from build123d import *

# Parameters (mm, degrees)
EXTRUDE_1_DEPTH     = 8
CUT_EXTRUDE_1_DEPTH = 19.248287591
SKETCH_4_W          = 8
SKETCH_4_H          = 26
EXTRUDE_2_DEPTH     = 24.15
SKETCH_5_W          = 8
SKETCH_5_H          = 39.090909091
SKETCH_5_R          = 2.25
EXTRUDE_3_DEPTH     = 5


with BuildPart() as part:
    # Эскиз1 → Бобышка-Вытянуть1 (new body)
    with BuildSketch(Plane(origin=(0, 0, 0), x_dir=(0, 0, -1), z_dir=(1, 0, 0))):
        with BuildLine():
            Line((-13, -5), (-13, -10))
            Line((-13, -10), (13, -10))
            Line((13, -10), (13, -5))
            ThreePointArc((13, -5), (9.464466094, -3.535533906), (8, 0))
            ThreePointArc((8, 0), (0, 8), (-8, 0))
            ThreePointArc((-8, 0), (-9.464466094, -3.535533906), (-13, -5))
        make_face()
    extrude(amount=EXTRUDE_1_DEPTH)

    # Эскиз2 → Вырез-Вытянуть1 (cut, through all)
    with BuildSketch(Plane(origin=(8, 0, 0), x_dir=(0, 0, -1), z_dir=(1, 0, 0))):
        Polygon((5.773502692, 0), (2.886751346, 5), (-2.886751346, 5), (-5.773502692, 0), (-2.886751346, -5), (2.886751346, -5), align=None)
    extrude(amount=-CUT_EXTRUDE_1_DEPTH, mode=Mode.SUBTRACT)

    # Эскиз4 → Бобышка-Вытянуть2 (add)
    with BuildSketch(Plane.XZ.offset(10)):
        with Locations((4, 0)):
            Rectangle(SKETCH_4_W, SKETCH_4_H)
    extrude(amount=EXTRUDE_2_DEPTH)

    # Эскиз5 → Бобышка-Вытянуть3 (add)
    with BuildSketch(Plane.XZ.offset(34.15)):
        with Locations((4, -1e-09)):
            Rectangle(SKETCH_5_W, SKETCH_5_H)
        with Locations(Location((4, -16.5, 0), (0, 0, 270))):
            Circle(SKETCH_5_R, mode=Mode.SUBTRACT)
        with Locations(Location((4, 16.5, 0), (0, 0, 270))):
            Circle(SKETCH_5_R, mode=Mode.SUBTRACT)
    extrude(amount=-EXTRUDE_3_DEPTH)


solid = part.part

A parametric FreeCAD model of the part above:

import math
import FreeCAD as App
import Part
import Sketcher
from FreeCAD import Vector
Q = App.Units.Quantity

doc = App.newDocument("Part")
body = doc.addObject("PartDesign::Body", "Body")

# Sketch on YZ plane
sketch1 = body.newObject("Sketcher::SketchObject", "Sketch")
sketch1.AttachmentSupport = (doc.getObject("YZ_Plane"), [""])
sketch1.MapMode = "FlatFace"
sketch1.addGeometry([
    Part.LineSegment(Vector(-5, 13, 0), Vector(-10, 13, 0)),  # 0
    Part.LineSegment(Vector(-10, 13, 0), Vector(-10, -13, 0)),  # 1
    Part.LineSegment(Vector(-10, -13, 0), Vector(-5, -13, 0)),  # 2
    Part.ArcOfCircle(Part.Circle(Vector(0, -13, 0), Vector(0, 0, 1), 5), math.radians(90), math.radians(180)),  # 3
    Part.ArcOfCircle(Part.Circle(Vector(0, 0, 0), Vector(0, 0, 1), 8), math.radians(-90), math.radians(90)),  # 4
    Part.ArcOfCircle(Part.Circle(Vector(0, 13, 0), Vector(0, 0, 1), 5), math.radians(180), math.radians(270)),  # 5
], False)
sketch1.addConstraint([
    Sketcher.Constraint("Coincident", 0, 2, 1, 1),
    Sketcher.Constraint("Coincident", 1, 2, 2, 1),
    Sketcher.Constraint("Coincident", 2, 2, 3, 2),
    Sketcher.Constraint("Tangent", 3, 1, 4, 1),
    Sketcher.Constraint("Tangent", 4, 2, 5, 2),
    Sketcher.Constraint("Coincident", 5, 1, 0, 1),
    Sketcher.Constraint("Horizontal", 0),
    Sketcher.Constraint("Vertical", 1),
    Sketcher.Constraint("Horizontal", 2),
    Sketcher.Constraint("Coincident", 4, 3, -1, 1),
    Sketcher.Constraint("Equal", 3, 5),
    Sketcher.Constraint("Symmetric", 2, 2, 5, 1, -1),
    Sketcher.Constraint("PointOnObject", 3, 3, -2),
    Sketcher.Constraint("Horizontal", 5, 3, 0, 2),
    Sketcher.Constraint("Radius", 3, Q("5 mm")),
    Sketcher.Constraint("Radius", 4, Q("8 mm")),
    Sketcher.Constraint("DistanceX", 0, 2, 0, 1, Q("5 mm")),
])
pad1 = body.newObject("PartDesign::Pad", "Pad")
pad1.Profile = sketch1
pad1.Length = 8

# Sketch on YZ plane
sketch2 = body.newObject("Sketcher::SketchObject", "Sketch001")
sketch2.AttachmentSupport = (doc.getObject("YZ_Plane"), [""])
sketch2.MapMode = "FlatFace"
sketch2.AttachmentOffset = App.Placement(Vector(0, 0, 8), App.Rotation())
sketch2.addGeometry([
    Part.LineSegment(Vector(0, -5.773503, 0), Vector(5, -2.886751, 0)),  # 0
    Part.LineSegment(Vector(5, -2.886751, 0), Vector(5, 2.886751, 0)),  # 1
    Part.LineSegment(Vector(5, 2.886751, 0), Vector(0, 5.773503, 0)),  # 2
    Part.LineSegment(Vector(0, 5.773503, 0), Vector(-5, 2.886751, 0)),  # 3
    Part.LineSegment(Vector(-5, 2.886751, 0), Vector(-5, -2.886751, 0)),  # 4
    Part.LineSegment(Vector(-5, -2.886751, 0), Vector(0, -5.773503, 0)),  # 5
], False)
sketch2.addConstraint([
    Sketcher.Constraint("Coincident", 0, 2, 1, 1),
    Sketcher.Constraint("Coincident", 1, 2, 2, 1),
    Sketcher.Constraint("Coincident", 2, 2, 3, 1),
    Sketcher.Constraint("Coincident", 3, 2, 4, 1),
    Sketcher.Constraint("Coincident", 4, 2, 5, 1),
    Sketcher.Constraint("Coincident", 5, 2, 0, 1),
    Sketcher.Constraint("Vertical", 1),
    Sketcher.Constraint("Vertical", 4),
    Sketcher.Constraint("Symmetric", 0, 2, 3, 2, -1, 1),
    Sketcher.Constraint("Symmetric", 2, 2, 5, 2, -1, 1),
    Sketcher.Constraint("PointOnObject", 2, 2, -2),
    Sketcher.Constraint("Parallel", 2, 5),
    Sketcher.Constraint("Horizontal", 1, 2, 3, 2),
    Sketcher.Constraint("Angle", 0, Q("30 deg")),
    Sketcher.Constraint("DistanceX", -1, 1, 0, 2, Q("5 mm")),
    Sketcher.Constraint("DistanceY", 1, 1, 1, 2, Q("5.773503 mm")),
])
pocket1 = body.newObject("PartDesign::Pocket", "Pocket")
pocket1.Profile = sketch2
pocket1.Type = "ThroughAll"

# Sketch on XZ plane
sketch3 = body.newObject("Sketcher::SketchObject", "Sketch002")
sketch3.AttachmentSupport = (doc.getObject("XZ_Plane"), [""])
sketch3.MapMode = "FlatFace"
sketch3.AttachmentOffset = App.Placement(Vector(0, 0, 10), App.Rotation())
sketch3.addGeometry([
    Part.LineSegment(Vector(0, 13, 0), Vector(0, -13, 0)),
    Part.LineSegment(Vector(0, -13, 0), Vector(8, -13, 0)),
    Part.LineSegment(Vector(8, -13, 0), Vector(8, 13, 0)),
    Part.LineSegment(Vector(8, 13, 0), Vector(0, 13, 0)),
], False)
sketch3.addConstraint([
    Sketcher.Constraint("Coincident", 0, 2, 1, 1),
    Sketcher.Constraint("Coincident", 1, 2, 2, 1),
    Sketcher.Constraint("Coincident", 2, 2, 3, 1),
    Sketcher.Constraint("Coincident", 3, 2, 0, 1),
    Sketcher.Constraint("Vertical", 0),
    Sketcher.Constraint("Horizontal", 1),
    Sketcher.Constraint("Vertical", 2),
    Sketcher.Constraint("Horizontal", 3),
    Sketcher.Constraint("Symmetric", 0, 2, 3, 2, -1, 1),
    Sketcher.Constraint("DistanceX", 1, 1, 1, 2, Q("8 mm")),
    Sketcher.Constraint("DistanceY", 0, 2, 0, 1, Q("26 mm")),
])
pad2 = body.newObject("PartDesign::Pad", "Pad001")
pad2.Profile = sketch3
pad2.Length = 24.15

# Sketch on XZ plane
sketch4 = body.newObject("Sketcher::SketchObject", "Sketch003")
sketch4.AttachmentSupport = (doc.getObject("XZ_Plane"), [""])
sketch4.MapMode = "FlatFace"
sketch4.AttachmentOffset = App.Placement(Vector(0, 0, 34.15), App.Rotation())
sketch4.addGeometry([
    Part.LineSegment(Vector(0, 19.545455, 0), Vector(0, -19.545455, 0)),  # 0
    Part.LineSegment(Vector(0, -19.545455, 0), Vector(8, -19.545455, 0)),  # 1
    Part.LineSegment(Vector(8, -19.545455, 0), Vector(8, 19.545455, 0)),  # 2
    Part.LineSegment(Vector(8, 19.545455, 0), Vector(0, 19.545455, 0)),  # 3
    Part.Circle(Vector(4, -16.5, 0), Vector(0, 0, 1), 2.25),  # 4
    Part.Circle(Vector(4, 16.5, 0), Vector(0, 0, 1), 2.25),  # 5
], False)
sketch4.addConstraint([
    Sketcher.Constraint("Coincident", 0, 2, 1, 1),
    Sketcher.Constraint("Coincident", 1, 2, 2, 1),
    Sketcher.Constraint("Coincident", 2, 2, 3, 1),
    Sketcher.Constraint("Coincident", 3, 2, 0, 1),
    Sketcher.Constraint("Vertical", 0),
    Sketcher.Constraint("Horizontal", 1),
    Sketcher.Constraint("Vertical", 2),
    Sketcher.Constraint("Horizontal", 3),
    Sketcher.Constraint("Equal", 4, 5),
    Sketcher.Constraint("Symmetric", 0, 2, 3, 2, -1, 1),
    Sketcher.Constraint("Symmetric", 4, 3, 5, 3, -1),
    Sketcher.Constraint("Diameter", 4, Q("4.5 mm")),
    Sketcher.Constraint("DistanceX", 1, 1, 1, 2, Q("8 mm")),
    Sketcher.Constraint("DistanceX", -1, 1, 4, 3, Q("4 mm")),
    Sketcher.Constraint("DistanceY", 4, 3, 5, 3, Q("33 mm")),
    Sketcher.Constraint("DistanceY", 0, 2, 0, 1, Q("39.090909 mm")),
])
pad3 = body.newObject("PartDesign::Pad", "Pad002")
pad3.Profile = sketch4
pad3.Length = 5
pad3.Reversed = True

doc.recompute()
